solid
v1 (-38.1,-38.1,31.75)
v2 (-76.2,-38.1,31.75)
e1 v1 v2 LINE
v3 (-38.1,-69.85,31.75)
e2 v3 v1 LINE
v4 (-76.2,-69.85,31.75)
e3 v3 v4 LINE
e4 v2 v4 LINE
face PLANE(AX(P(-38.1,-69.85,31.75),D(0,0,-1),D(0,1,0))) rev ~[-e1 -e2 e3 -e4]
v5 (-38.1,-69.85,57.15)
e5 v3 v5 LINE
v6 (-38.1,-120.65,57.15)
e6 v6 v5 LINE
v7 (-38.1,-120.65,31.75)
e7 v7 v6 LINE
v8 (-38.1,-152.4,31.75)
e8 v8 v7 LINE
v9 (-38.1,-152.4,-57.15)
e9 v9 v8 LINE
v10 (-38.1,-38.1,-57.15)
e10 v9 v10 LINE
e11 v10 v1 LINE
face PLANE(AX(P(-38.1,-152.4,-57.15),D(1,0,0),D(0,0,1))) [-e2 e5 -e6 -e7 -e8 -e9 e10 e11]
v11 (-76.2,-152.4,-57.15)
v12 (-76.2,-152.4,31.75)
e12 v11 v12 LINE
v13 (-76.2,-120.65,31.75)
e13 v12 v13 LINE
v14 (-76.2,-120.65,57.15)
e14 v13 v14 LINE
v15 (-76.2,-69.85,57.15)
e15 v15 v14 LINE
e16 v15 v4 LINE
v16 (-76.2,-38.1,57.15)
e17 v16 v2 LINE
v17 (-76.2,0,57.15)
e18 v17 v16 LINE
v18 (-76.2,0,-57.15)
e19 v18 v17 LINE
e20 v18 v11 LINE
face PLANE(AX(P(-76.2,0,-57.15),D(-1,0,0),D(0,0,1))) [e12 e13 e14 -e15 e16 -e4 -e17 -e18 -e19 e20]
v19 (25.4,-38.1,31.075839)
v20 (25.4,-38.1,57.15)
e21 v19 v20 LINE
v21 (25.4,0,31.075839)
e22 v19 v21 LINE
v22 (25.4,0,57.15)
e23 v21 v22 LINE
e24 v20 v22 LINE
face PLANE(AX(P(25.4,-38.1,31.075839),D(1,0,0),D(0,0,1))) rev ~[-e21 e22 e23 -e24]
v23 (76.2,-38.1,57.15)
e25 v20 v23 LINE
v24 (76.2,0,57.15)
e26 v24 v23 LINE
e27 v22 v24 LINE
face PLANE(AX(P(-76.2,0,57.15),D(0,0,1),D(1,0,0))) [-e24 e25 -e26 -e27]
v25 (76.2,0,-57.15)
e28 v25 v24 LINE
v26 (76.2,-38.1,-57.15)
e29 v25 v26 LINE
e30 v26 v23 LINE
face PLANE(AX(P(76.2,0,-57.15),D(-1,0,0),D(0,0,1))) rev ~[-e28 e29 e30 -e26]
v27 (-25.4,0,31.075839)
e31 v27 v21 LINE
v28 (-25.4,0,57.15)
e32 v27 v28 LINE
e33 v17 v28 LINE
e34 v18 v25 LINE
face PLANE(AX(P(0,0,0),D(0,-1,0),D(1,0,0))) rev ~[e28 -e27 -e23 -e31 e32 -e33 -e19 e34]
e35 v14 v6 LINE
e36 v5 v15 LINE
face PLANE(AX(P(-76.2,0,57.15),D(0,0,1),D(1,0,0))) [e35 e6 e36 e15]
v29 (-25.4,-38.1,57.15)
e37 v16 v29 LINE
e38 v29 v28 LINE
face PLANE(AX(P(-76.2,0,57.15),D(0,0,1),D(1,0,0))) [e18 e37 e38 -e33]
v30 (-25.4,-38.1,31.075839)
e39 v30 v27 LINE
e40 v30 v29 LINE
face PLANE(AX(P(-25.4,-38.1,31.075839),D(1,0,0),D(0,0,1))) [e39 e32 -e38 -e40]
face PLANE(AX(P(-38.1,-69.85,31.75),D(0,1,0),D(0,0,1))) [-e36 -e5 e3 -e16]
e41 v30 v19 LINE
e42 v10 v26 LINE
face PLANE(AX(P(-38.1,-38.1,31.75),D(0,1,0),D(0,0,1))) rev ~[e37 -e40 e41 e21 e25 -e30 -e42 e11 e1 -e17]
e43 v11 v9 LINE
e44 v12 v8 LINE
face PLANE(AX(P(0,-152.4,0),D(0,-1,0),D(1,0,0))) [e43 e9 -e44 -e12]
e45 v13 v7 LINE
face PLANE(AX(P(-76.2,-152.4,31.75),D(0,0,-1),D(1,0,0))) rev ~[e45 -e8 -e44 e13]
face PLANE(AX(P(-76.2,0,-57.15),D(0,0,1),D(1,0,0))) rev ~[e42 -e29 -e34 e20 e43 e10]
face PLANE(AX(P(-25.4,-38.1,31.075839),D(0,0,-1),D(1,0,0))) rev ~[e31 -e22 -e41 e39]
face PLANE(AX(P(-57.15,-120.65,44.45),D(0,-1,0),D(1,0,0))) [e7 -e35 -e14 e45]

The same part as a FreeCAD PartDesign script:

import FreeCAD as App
import Part
import Sketcher
Q = App.Units.Quantity


def add_polygon(sketch, points):
    """Adds a closed chain of lines whose ends are joined by coincident constraints."""
    first, n = sketch.GeometryCount, len(points)
    for a, b in zip(points, points[1:] + points[:1]):
        sketch.addGeometry(Part.LineSegment(App.Vector(*a, 0), App.Vector(*b, 0)), False)
    for i in range(n):
        sketch.addConstraint(Sketcher.Constraint("Coincident", first + i, 2, first + (i + 1) % n, 1))

doc = App.newDocument("Part")
body = doc.addObject("PartDesign::Body", "Body")

# Sketch on XZ plane
sketch1 = body.newObject("Sketcher::SketchObject", "Sketch")
sketch1.AttachmentSupport = (doc.getObject("XZ_Plane"), [""])
sketch1.MapMode = "FlatFace"
add_polygon(sketch1, [(-76, 57), (-76, -57), (76, -57), (76, 57)])  # lines 0-3
sketch1.addConstraint(Sketcher.Constraint("Vertical", 0))
sketch1.addConstraint(Sketcher.Constraint("Horizontal", 1))
sketch1.addConstraint(Sketcher.Constraint("Vertical", 2))
sketch1.addConstraint(Sketcher.Constraint("Horizontal", 3))
sketch1.addConstraint(Sketcher.Constraint("Symmetric", 0, 2, 2, 2, -1, 1))
sketch1.addConstraint(Sketcher.Constraint("DistanceX", 1, 1, 1, 2, Q("6 in")))
sketch1.addConstraint(Sketcher.Constraint("DistanceY", 0, 2, 0, 1, Q("4.5 in")))
pad1 = body.newObject("PartDesign::Pad", "Pad")
pad1.Profile = sketch1
pad1.Length = Q("6 in")

# Sketch on XZ plane
sketch2 = body.newObject("Sketcher::SketchObject", "Sketch001")
sketch2.AttachmentSupport = (doc.getObject("XZ_Plane"), [""])
sketch2.MapMode = "FlatFace"
sketch2.AttachmentOffset = App.Placement(App.Vector(0, 0, 6 * 25.4), App.Rotation())
add_polygon(sketch2, [(-38, 57), (-38, -57), (76, -57), (76, 57)])  # lines 0-3
sketch2.addConstraint(Sketcher.Constraint("Vertical", 0))
sketch2.addConstraint(Sketcher.Constraint("Horizontal", 1))
sketch2.addConstraint(Sketcher.Constraint("Vertical", 2))
sketch2.addConstraint(Sketcher.Constraint("Horizontal", 3))
sketch2.addConstraint(Sketcher.Constraint("Equal", 3, 0))
sketch2.addConstraint(Sketcher.Constraint("DistanceX", 1, 1, 1, 2, Q("4.5 in")))
sketch2.addConstraint(Sketcher.Constraint("DistanceX", -1, 1, 1, 2, Q("3 in")))
sketch2.addConstraint(Sketcher.Constraint("DistanceY", 0, 2, -1, 1, Q("2.25 in")))
pocket1 = body.newObject("PartDesign::Pocket", "Pocket")
pocket1.Profile = sketch2
pocket1.Length = Q("4.5 in")

# Sketch on XZ plane
sketch3 = body.newObject("Sketcher::SketchObject", "Sketch002")
sketch3.AttachmentSupport = (doc.getObject("XZ_Plane"), [""])
sketch3.MapMode = "FlatFace"
sketch3.AttachmentOffset = App.Placement(App.Vector(0, 0, 6 * 25.4), App.Rotation())
add_polygon(sketch3, [(-76, 57), (-76, 32), (-38, 32), (-38, 57)])  # lines 0-3
sketch3.addConstraint(Sketcher.Constraint("Vertical", 0))
sketch3.addConstraint(Sketcher.Constraint("Horizontal", 1))
sketch3.addConstraint(Sketcher.Constraint("Vertical", 2))
sketch3.addConstraint(Sketcher.Constraint("Horizontal", 3))
sketch3.addConstraint(Sketcher.Constraint("DistanceY", 0, 2, 0, 1, Q("1 in")))
sketch3.addConstraint(Sketcher.Constraint("DistanceX", 1, 1, 1, 2, Q("1.5 in")))
sketch3.addConstraint(Sketcher.Constraint("DistanceX", 0, 2, -1, 1, Q("3 in")))
sketch3.addConstraint(Sketcher.Constraint("DistanceY", -1, 1, 0, 2, Q("1.25 in")))
pocket2 = body.newObject("PartDesign::Pocket", "Pocket001")
pocket2.Profile = sketch3
pocket2.Length = Q("1.25 in")

# Sketch on YZ plane
sketch4 = body.newObject("Sketcher::SketchObject", "Sketch003")
sketch4.AttachmentSupport = (doc.getObject("YZ_Plane"), [""])
sketch4.MapMode = "FlatFace"
sketch4.AttachmentOffset = App.Placement(App.Vector(0, 0, -1.5 * 25.4), App.Rotation())
add_polygon(sketch4, [(-70, 57), (-70, 32), (-38, 32), (-38, 57)])  # lines 0-3
sketch4.addConstraint(Sketcher.Constraint("Vertical", 0))
sketch4.addConstraint(Sketcher.Constraint("Horizontal", 1))
sketch4.addConstraint(Sketcher.Constraint("Vertical", 2))
sketch4.addConstraint(Sketcher.Constraint("Horizontal", 3))
sketch4.addConstraint(Sketcher.Constraint("DistanceY", 0, 2, 0, 1, Q("1 in")))
sketch4.addConstraint(Sketcher.Constraint("DistanceX", 1, 1, 1, 2, Q("1.25 in")))
sketch4.addConstraint(Sketcher.Constraint("DistanceX", 1, 2, -1, 1, Q("1.5 in")))
sketch4.addConstraint(Sketcher.Constraint("DistanceY", -1, 1, 0, 2, Q("1.25 in")))
pocket3 = body.newObject("PartDesign::Pocket", "Pocket002")
pocket3.Profile = sketch4
pocket3.Type = "ThroughAll"

# Sketch on XZ plane
sketch5 = body.newObject("Sketcher::SketchObject", "Sketch004")
sketch5.AttachmentSupport = (doc.getObject("XZ_Plane"), [""])
sketch5.MapMode = "FlatFace"
sketch5.AttachmentOffset = App.Placement(App.Vector(0, 0, 1.5 * 25.4), App.Rotation())
add_polygon(sketch5, [(-25, 57), (-25, 31), (25, 31), (25, 57)])  # lines 0-3
sketch5.addConstraint(Sketcher.Constraint("Vertical", 0))
sketch5.addConstraint(Sketcher.Constraint("Horizontal", 1))
sketch5.addConstraint(Sketcher.Constraint("Vertical", 2))
sketch5.addConstraint(Sketcher.Constraint("Horizontal", 3))
sketch5.addConstraint(Sketcher.Constraint("DistanceX", 1, 1, 1, 2, Q("2 in")))
sketch5.addConstraint(Sketcher.Constraint("DistanceX", 0, 2, -1, 1, Q("1 in")))
sketch5.addConstraint(Sketcher.Constraint("DistanceY", -1, 1, 2, 2, Q("2.25 in")))
sketch5.addConstraint(Sketcher.Constraint("DistanceY", 0, 2, 0, 1, Q("26.074161 mm")))
pocket4 = body.newObject("PartDesign::Pocket", "Pocket003")
pocket4.Profile = sketch5
pocket4.Type = "ThroughAll"

doc.recompute()
